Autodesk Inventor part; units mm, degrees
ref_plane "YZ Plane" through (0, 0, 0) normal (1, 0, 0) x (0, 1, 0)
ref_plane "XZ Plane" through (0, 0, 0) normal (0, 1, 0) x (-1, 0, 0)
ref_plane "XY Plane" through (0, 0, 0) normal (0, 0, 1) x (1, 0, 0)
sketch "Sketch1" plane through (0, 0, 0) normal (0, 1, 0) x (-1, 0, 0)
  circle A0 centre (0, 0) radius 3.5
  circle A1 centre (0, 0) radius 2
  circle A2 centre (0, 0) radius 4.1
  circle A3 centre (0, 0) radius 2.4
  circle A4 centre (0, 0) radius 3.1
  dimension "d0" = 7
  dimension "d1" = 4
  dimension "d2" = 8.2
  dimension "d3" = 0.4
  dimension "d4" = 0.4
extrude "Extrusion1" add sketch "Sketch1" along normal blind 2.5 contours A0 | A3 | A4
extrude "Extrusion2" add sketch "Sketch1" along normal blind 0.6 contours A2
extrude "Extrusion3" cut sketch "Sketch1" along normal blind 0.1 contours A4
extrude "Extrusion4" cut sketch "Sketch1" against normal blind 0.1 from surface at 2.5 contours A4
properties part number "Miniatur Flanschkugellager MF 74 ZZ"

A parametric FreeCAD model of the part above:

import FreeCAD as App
import Part
import Sketcher
Q = App.Units.Quantity

doc = App.newDocument("Part")
body = doc.addObject("PartDesign::Body", "Body")

sketch1 = body.newObject("Sketcher::SketchObject", "Sketch")
sketch1.AttachmentSupport = (doc.getObject("XZ_Plane"), [""])
sketch1.MapMode = "FlatFace"
sketch1.addGeometry([
    Part.Circle(App.Vector(0, 0, 0), App.Vector(0, 0, 1), 3.5),
    Part.Circle(App.Vector(0, 0, 0), App.Vector(0, 0, 1), 2),
], False)
sketch1.addConstraint([
    Sketcher.Constraint("Coincident", 0, 3, -1, 1),
    Sketcher.Constraint("Coincident", 1, 3, -1, 1),
    Sketcher.Constraint("Diameter", 0, Q("7 mm")),
    Sketcher.Constraint("Diameter", 1, Q("4 mm")),
])
pad1 = body.newObject("PartDesign::Pad", "Pad")
pad1.Profile = sketch1
pad1.Length = 2.5
pad1.Reversed = True

sketch2 = body.newObject("Sketcher::SketchObject", "Sketch001")
sketch2.AttachmentSupport = (doc.getObject("XZ_Plane"), [""])
sketch2.MapMode = "FlatFace"
sketch2.addGeometry([
    Part.Circle(App.Vector(0, 0, 0), App.Vector(0, 0, 1), 4.1),
    Part.Circle(App.Vector(0, 0, 0), App.Vector(0, 0, 1), 3.5),
], False)
sketch2.addConstraint([
    Sketcher.Constraint("Coincident", 0, 3, -1, 1),
    Sketcher.Constraint("Coincident", 1, 3, -1, 1),
    Sketcher.Constraint("Diameter", 1, Q("7 mm")),
    Sketcher.Constraint("Diameter", 0, Q("8.2 mm")),
])
pad2 = body.newObject("PartDesign::Pad", "Pad001")
pad2.Profile = sketch2
pad2.Length = 0.6
pad2.Reversed = True

sketch3 = body.newObject("Sketcher::SketchObject", "Sketch002")
sketch3.AttachmentSupport = (doc.getObject("XZ_Plane"), [""])
sketch3.MapMode = "FlatFace"
sketch3.addGeometry([
    Part.Circle(App.Vector(0, 0, 0), App.Vector(0, 0, 1), 3.1),
    Part.Circle(App.Vector(0, 0, 0), App.Vector(0, 0, 1), 2.4),
], False)
sketch3.addConstraint([
    Sketcher.Constraint("Coincident", 0, 3, -1, 1),
    Sketcher.Constraint("Coincident", 1, 3, -1, 1),
    Sketcher.Constraint("Diameter", 0, Q("6.2 mm")),
    Sketcher.Constraint("Diameter", 1, Q("4.8 mm")),
])
pocket1 = body.newObject("PartDesign::Pocket", "Pocket")
pocket1.Profile = sketch3
pocket1.Length = 0.1

sketch4 = body.newObject("Sketcher::SketchObject", "Sketch003")
sketch4.AttachmentSupport = (doc.getObject("XZ_Plane"), [""])
sketch4.MapMode = "FlatFace"
sketch4.AttachmentOffset = App.Placement(App.Vector(0, 0, -2.5), App.Rotation())
sketch4.addGeometry([
    Part.Circle(App.Vector(0, 0, 0), App.Vector(0, 0, 1), 3.1),
    Part.Circle(App.Vector(0, 0, 0), App.Vector(0, 0, 1), 2.4),
], False)
sketch4.addConstraint([
    Sketcher.Constraint("Coincident", 0, 3, -1, 1),
    Sketcher.Constraint("Coincident", 1, 3, -1, 1),
    Sketcher.Constraint("Diameter", 0, Q("6.2 mm")),
    Sketcher.Constraint("Diameter", 1, Q("4.8 mm")),
])
pocket2 = body.newObject("PartDesign::Pocket", "Pocket001")
pocket2.Profile = sketch4
pocket2.Length = 0.1
pocket2.Reversed = True

doc.recompute()
